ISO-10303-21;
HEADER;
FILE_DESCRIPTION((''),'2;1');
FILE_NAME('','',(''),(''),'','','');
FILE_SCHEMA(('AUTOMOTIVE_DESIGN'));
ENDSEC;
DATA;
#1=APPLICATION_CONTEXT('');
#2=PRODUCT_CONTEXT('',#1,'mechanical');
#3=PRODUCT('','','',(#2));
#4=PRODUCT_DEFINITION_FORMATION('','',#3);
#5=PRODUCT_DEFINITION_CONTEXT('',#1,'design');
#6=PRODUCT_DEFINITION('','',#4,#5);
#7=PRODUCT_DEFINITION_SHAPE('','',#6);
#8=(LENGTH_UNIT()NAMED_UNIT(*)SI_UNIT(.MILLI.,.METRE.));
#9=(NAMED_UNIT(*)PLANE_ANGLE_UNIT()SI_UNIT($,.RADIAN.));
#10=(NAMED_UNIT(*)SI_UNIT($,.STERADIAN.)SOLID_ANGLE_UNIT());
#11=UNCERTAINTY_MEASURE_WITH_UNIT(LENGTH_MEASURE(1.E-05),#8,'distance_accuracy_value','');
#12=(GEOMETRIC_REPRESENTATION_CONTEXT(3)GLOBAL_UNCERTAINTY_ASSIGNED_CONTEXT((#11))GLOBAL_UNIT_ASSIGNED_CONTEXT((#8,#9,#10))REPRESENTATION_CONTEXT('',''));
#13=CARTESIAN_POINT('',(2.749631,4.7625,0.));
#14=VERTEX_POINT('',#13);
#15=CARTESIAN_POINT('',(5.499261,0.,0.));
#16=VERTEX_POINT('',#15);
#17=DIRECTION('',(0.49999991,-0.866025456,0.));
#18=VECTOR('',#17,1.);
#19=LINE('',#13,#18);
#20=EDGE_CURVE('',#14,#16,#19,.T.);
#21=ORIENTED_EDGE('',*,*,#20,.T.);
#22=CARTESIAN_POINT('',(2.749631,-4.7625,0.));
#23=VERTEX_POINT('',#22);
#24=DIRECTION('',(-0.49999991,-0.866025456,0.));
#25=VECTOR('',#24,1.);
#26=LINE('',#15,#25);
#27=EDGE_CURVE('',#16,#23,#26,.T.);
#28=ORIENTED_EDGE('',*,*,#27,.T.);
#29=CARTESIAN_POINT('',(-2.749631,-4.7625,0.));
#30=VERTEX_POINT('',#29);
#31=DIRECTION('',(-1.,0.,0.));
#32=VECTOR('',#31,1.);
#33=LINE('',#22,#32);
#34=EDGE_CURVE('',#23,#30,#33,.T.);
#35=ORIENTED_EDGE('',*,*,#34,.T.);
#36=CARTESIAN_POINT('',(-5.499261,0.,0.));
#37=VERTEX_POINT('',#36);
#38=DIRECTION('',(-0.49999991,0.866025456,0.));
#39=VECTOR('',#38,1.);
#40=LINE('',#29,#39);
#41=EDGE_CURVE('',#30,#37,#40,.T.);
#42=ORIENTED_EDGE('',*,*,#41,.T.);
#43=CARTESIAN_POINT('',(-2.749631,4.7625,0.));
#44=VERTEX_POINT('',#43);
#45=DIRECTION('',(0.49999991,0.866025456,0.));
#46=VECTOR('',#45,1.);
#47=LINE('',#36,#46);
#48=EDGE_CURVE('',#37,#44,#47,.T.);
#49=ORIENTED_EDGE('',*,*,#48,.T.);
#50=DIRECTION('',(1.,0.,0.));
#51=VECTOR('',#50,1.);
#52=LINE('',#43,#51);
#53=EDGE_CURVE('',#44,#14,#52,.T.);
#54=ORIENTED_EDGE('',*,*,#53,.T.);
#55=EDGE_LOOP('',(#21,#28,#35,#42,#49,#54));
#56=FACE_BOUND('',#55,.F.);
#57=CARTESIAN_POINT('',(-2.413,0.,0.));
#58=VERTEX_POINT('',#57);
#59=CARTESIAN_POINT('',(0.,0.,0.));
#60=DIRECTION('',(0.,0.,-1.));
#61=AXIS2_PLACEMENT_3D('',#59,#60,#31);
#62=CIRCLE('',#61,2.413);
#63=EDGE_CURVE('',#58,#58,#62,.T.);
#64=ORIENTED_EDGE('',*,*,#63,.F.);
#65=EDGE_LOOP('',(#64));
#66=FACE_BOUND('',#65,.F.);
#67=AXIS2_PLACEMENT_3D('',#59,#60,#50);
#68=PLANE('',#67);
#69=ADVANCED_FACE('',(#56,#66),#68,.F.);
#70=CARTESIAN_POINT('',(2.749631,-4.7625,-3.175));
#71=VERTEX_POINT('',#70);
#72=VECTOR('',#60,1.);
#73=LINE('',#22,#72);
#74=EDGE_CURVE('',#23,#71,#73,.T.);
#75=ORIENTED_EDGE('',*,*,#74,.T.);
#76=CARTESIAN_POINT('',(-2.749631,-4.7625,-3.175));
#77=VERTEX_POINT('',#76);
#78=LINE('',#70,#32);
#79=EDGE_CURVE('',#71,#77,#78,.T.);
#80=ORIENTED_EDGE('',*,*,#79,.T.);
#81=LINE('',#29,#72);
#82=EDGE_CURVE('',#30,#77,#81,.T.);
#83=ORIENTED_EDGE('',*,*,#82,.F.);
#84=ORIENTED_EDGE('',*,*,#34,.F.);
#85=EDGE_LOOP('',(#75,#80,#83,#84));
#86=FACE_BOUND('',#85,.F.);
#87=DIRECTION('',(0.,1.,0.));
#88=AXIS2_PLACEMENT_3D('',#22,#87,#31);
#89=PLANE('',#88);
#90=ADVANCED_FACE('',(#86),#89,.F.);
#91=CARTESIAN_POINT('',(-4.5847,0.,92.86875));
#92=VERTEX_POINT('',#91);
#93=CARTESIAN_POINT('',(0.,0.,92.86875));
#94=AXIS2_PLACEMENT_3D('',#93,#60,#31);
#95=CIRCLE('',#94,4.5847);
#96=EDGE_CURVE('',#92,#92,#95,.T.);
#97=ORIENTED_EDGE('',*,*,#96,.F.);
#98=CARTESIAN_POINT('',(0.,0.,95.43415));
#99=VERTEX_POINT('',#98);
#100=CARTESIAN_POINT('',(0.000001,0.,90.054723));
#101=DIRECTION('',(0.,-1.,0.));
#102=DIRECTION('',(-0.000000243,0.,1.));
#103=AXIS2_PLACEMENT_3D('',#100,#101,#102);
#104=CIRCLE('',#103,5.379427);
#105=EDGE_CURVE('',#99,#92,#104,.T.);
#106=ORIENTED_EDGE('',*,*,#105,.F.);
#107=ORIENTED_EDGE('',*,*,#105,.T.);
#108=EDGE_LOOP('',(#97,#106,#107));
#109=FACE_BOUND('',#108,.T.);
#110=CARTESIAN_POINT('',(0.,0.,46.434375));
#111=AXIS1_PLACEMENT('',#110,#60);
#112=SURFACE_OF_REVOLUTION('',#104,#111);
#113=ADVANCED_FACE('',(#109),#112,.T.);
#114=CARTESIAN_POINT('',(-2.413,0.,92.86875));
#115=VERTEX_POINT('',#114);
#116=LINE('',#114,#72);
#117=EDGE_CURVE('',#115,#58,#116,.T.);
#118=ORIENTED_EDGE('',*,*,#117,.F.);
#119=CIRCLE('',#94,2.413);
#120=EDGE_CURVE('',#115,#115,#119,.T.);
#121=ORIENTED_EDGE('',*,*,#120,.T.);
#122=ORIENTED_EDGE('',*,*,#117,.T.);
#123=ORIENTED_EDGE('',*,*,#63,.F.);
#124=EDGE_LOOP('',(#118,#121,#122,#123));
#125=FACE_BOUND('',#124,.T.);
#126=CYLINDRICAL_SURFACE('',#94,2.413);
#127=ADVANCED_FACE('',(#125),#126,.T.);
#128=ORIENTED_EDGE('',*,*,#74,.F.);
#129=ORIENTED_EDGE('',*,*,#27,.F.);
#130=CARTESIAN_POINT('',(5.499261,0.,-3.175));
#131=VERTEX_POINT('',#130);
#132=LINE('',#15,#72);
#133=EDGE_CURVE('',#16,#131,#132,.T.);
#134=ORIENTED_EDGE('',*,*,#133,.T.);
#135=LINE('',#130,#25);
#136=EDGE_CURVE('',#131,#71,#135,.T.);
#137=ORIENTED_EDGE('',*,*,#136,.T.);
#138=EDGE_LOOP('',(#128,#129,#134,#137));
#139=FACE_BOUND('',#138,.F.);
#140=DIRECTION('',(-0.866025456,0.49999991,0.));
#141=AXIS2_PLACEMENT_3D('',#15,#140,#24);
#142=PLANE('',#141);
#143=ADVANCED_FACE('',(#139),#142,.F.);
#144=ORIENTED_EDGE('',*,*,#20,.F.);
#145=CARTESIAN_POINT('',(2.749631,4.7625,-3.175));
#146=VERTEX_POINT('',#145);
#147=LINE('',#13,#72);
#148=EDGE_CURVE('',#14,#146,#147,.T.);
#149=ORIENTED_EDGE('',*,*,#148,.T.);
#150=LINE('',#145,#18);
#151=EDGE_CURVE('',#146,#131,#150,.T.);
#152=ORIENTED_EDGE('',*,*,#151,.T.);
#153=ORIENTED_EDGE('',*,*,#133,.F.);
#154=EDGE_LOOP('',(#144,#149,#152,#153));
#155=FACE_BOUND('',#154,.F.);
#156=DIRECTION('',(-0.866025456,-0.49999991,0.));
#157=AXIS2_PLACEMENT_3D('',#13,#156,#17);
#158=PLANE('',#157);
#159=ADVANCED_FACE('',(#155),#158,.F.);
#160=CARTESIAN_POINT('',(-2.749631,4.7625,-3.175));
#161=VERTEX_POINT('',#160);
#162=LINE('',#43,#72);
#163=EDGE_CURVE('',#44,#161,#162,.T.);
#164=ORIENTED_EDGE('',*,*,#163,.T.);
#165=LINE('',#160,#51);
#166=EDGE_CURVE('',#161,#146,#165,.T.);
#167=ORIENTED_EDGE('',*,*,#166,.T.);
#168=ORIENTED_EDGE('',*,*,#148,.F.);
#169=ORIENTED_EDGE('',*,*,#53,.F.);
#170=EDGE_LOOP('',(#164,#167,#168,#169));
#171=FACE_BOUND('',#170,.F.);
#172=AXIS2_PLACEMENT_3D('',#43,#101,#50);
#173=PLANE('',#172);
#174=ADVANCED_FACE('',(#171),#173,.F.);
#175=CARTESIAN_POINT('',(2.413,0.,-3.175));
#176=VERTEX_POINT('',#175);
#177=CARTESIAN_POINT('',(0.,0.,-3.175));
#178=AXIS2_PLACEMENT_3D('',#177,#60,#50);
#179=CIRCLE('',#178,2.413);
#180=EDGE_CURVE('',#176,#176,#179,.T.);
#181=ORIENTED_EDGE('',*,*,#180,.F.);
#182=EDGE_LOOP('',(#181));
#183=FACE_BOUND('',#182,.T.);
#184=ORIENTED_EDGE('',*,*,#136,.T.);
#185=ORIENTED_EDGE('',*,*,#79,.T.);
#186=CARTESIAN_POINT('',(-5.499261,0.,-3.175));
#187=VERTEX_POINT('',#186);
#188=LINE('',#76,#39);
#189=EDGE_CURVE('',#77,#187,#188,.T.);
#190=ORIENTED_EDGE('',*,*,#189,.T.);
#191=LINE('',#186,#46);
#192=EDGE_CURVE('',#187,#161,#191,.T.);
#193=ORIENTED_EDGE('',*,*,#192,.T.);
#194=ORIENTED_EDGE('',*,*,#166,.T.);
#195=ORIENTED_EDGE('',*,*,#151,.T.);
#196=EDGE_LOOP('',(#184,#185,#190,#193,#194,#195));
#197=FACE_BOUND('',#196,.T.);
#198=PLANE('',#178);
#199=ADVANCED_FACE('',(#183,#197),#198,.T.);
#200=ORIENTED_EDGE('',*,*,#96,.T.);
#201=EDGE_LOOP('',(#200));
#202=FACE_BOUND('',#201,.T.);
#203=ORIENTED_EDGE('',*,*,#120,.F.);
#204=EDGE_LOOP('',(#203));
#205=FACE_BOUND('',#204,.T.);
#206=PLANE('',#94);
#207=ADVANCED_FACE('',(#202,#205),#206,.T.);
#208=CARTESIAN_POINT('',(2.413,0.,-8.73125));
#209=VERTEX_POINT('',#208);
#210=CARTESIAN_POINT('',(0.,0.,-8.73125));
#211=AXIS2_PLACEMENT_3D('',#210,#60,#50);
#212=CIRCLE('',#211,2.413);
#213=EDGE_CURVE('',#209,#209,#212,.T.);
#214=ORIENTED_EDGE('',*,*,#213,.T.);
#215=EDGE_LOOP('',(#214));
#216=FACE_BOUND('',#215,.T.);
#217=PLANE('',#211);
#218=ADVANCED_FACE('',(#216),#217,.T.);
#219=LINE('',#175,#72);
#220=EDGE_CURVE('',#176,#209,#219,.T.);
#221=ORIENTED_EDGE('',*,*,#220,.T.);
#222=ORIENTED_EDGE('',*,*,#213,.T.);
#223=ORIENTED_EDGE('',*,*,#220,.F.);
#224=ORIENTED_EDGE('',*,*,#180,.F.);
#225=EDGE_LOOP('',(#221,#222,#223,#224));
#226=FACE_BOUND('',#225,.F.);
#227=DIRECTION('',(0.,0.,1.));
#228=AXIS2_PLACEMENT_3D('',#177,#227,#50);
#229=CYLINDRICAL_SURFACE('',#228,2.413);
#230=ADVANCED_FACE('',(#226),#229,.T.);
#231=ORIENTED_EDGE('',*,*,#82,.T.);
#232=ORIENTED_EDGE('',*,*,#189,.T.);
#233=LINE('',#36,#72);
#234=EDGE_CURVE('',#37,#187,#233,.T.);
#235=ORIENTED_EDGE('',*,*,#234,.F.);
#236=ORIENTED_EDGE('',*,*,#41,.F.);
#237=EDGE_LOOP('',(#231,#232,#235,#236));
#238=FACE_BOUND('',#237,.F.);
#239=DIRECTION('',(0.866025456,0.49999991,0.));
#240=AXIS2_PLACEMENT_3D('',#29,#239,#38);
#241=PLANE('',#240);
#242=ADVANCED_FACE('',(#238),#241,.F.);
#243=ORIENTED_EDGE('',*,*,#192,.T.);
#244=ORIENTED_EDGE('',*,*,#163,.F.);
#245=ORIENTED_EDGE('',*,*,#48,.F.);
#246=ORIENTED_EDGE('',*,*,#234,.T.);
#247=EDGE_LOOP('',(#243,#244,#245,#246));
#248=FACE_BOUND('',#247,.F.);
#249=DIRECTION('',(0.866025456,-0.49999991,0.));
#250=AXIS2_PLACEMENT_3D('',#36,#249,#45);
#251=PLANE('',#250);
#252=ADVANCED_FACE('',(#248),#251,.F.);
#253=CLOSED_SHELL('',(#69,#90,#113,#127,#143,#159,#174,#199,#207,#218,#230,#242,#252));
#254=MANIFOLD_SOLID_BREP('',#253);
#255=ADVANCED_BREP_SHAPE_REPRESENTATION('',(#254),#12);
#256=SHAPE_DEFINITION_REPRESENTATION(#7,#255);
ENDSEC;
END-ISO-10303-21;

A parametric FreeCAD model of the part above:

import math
import FreeCAD as App
import Part
import Sketcher
Q = App.Units.Quantity

doc = App.newDocument("Part")
body = doc.addObject("PartDesign::Body", "Body")

# Sketch on XZ plane
sketch1 = doc.addObject("Sketcher::SketchObject", "Sketch")
body.addObject(sketch1)
sketch1.AttachmentSupport = (doc.XZ_Plane, [""])
sketch1.MapMode = "FlatFace"
sketch1.addGeometry(Part.LineSegment(App.Vector(0, 0, 0), App.Vector(0, 95.4, 0)), False)
sketch1.addGeometry(Part.ArcOfCircle(Part.Circle(App.Vector(0, 90.1, 0), App.Vector(0, 0, 1), 5.4), math.radians(90), math.radians(148)), False)
sketch1.addGeometry(Part.LineSegment(App.Vector(-4.6, 92.9, 0), App.Vector(-2.4, 92.9, 0)), False)
sketch1.addGeometry(Part.LineSegment(App.Vector(-2.4, 92.9, 0), App.Vector(-2.4, 0, 0)), False)
sketch1.addGeometry(Part.LineSegment(App.Vector(-2.4, 0, 0), App.Vector(0, 0, 0)), False)
sketch1.addConstraint(Sketcher.Constraint("Coincident", 0, 2, 1, 1))
sketch1.addConstraint(Sketcher.Constraint("Coincident", 1, 2, 2, 1))
sketch1.addConstraint(Sketcher.Constraint("Coincident", 2, 2, 3, 1))
sketch1.addConstraint(Sketcher.Constraint("Coincident", 3, 2, 4, 1))
sketch1.addConstraint(Sketcher.Constraint("Coincident", 4, 2, 0, 1))
sketch1.addConstraint(Sketcher.Constraint("Vertical", 0))
sketch1.addConstraint(Sketcher.Constraint("Horizontal", 2))
sketch1.addConstraint(Sketcher.Constraint("Vertical", 3))
sketch1.addConstraint(Sketcher.Constraint("Horizontal", 4))
sketch1.addConstraint(Sketcher.Constraint("Coincident", 4, 2, -1, 1))
sketch1.addConstraint(Sketcher.Constraint("PointOnObject", 1, 3, -2))
sketch1.addConstraint(Sketcher.Constraint("DistanceX", 4, 1, 4, 2, Q("0.095 in")))
sketch1.addConstraint(Sketcher.Constraint("DistanceY", 3, 2, 3, 1, Q("3.65625 in")))
sketch1.addConstraint(Sketcher.Constraint("DistanceX", 2, 1, 2, 2, Q("0.0855 in")))
sketch1.addConstraint(Sketcher.Constraint("DistanceY", 1, 2, 0, 2, Q("0.101 in")))
revolution = doc.addObject("PartDesign::Revolution", "Revolution")
body.addObject(revolution)
revolution.Profile = sketch1
revolution.ReferenceAxis = (sketch1, ["V_Axis"])
revolution.Angle = 360

# Sketch on XY plane
sketch2 = doc.addObject("Sketcher::SketchObject", "Sketch001")
body.addObject(sketch2)
sketch2.AttachmentSupport = (doc.XY_Plane, [""])
sketch2.MapMode = "FlatFace"
sketch2.addGeometry(Part.LineSegment(App.Vector(3, -5, 0), App.Vector(-3, -5, 0)), False)
sketch2.addGeometry(Part.LineSegment(App.Vector(-3, -5, 0), App.Vector(-5, 0, 0)), False)
sketch2.addGeometry(Part.LineSegment(App.Vector(-5, 0, 0), App.Vector(-3, 5, 0)), False)
sketch2.addGeometry(Part.LineSegment(App.Vector(-3, 5, 0), App.Vector(3, 5, 0)), False)
sketch2.addGeometry(Part.LineSegment(App.Vector(3, 5, 0), App.Vector(5, 0, 0)), False)
sketch2.addGeometry(Part.LineSegment(App.Vector(5, 0, 0), App.Vector(3, -5, 0)), False)
sketch2.addConstraint(Sketcher.Constraint("Coincident", 0, 2, 1, 1))
sketch2.addConstraint(Sketcher.Constraint("Coincident", 1, 2, 2, 1))
sketch2.addConstraint(Sketcher.Constraint("Coincident", 2, 2, 3, 1))
sketch2.addConstraint(Sketcher.Constraint("Coincident", 3, 2, 4, 1))
sketch2.addConstraint(Sketcher.Constraint("Coincident", 4, 2, 5, 1))
sketch2.addConstraint(Sketcher.Constraint("Coincident", 5, 2, 0, 1))
sketch2.addConstraint(Sketcher.Constraint("Horizontal", 0))
sketch2.addConstraint(Sketcher.Constraint("Horizontal", 3))
sketch2.addConstraint(Sketcher.Constraint("Symmetric", 0, 2, 3, 2, -1, 1))
sketch2.addConstraint(Sketcher.Constraint("Symmetric", 1, 2, 4, 2, -1, 1))
sketch2.addConstraint(Sketcher.Constraint("PointOnObject", 1, 2, -1))
sketch2.addConstraint(Sketcher.Constraint("Parallel", 2, 5))
sketch2.addConstraint(Sketcher.Constraint("Vertical", 0, 2, 2, 2))
sketch2.addConstraint(Sketcher.Constraint("Angle", 1, Q("119.999994 deg")))
sketch2.addConstraint(Sketcher.Constraint("DistanceY", 0, 2, -1, 1, Q("0.1875 in")))
sketch2.addConstraint(Sketcher.Constraint("DistanceX", 0, 2, 0, 1, 5.499262))
pad1 = doc.addObject("PartDesign::Pad", "Pad")
body.addObject(pad1)
pad1.Profile = sketch2
pad1.Length = Q("0.125 in")
pad1.Reversed = True

# Sketch on XY plane
sketch3 = doc.addObject("Sketcher::SketchObject", "Sketch002")
body.addObject(sketch3)
sketch3.AttachmentSupport = (doc.XY_Plane, [""])
sketch3.MapMode = "FlatFace"
sketch3.AttachmentOffset = App.Placement(App.Vector(0, 0, -0.125 * 25.4), App.Rotation())
sketch3.addGeometry(Part.Circle(App.Vector(0, 0, 0), App.Vector(0, 0, 1), 2.4), False)
sketch3.addConstraint(Sketcher.Constraint("Coincident", 0, 3, -1, 1))
sketch3.addConstraint(Sketcher.Constraint("Diameter", 0, Q("0.19 in")))
pad2 = doc.addObject("PartDesign::Pad", "Pad001")
body.addObject(pad2)
pad2.Profile = sketch3
pad2.Length = Q("0.21875 in")
pad2.Reversed = True

doc.recompute()
